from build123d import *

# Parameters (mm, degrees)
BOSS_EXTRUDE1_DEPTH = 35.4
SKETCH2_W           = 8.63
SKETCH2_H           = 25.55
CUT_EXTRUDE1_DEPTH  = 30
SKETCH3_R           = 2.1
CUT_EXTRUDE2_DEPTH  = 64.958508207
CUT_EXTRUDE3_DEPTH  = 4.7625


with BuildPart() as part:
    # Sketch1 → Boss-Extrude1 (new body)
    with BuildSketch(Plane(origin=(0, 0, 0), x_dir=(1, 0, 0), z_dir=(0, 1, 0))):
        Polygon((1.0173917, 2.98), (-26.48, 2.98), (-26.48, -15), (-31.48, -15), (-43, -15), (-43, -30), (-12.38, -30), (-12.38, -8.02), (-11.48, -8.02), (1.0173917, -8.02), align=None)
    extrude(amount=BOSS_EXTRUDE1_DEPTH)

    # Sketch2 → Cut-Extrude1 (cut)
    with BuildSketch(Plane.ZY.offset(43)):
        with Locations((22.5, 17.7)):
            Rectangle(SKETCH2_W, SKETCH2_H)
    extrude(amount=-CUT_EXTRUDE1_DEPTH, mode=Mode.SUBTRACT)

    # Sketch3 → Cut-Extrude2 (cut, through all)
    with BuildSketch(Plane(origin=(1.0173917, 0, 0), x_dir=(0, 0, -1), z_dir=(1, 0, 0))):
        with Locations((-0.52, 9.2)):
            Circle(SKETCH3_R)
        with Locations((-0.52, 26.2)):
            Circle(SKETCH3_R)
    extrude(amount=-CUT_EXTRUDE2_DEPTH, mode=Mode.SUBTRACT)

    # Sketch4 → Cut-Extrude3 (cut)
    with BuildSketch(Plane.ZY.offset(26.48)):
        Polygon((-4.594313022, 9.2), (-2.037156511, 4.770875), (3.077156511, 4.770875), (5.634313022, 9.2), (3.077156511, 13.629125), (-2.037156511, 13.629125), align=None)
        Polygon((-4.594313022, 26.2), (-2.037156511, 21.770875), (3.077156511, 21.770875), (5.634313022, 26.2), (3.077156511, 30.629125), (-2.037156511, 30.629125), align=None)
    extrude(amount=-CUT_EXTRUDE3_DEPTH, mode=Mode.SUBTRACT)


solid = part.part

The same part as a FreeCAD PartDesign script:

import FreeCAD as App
import Part
import Sketcher
Q = App.Units.Quantity

doc = App.newDocument("Part")
body = doc.addObject("PartDesign::Body", "Body")

sketch1 = body.newObject("Sketcher::SketchObject", "Sketch")
sketch1.AttachmentSupport = (doc.getObject("XZ_Plane"), [""])
sketch1.MapMode = "FlatFace"
sketch1.addGeometry([
    Part.LineSegment(App.Vector(1.017392, -2.98, 0), App.Vector(-26.48, -2.98, 0)),
    Part.LineSegment(App.Vector(-26.48, -2.98, 0), App.Vector(-26.48, 15, 0)),
    Part.LineSegment(App.Vector(-26.48, 15, 0), App.Vector(-43, 15, 0)),
    Part.LineSegment(App.Vector(-43, 15, 0), App.Vector(-43, 30, 0)),
    Part.LineSegment(App.Vector(-43, 30, 0), App.Vector(-12.38, 30, 0)),
    Part.LineSegment(App.Vector(-12.38, 30, 0), App.Vector(-12.38, 8.02, 0)),
    Part.LineSegment(App.Vector(-12.38, 8.02, 0), App.Vector(1.017392, 8.02, 0)),
    Part.LineSegment(App.Vector(1.017392, 8.02, 0), App.Vector(1.017392, -2.98, 0)),
], False)
sketch1.addConstraint([
    Sketcher.Constraint("Coincident", 0, 2, 1, 1),
    Sketcher.Constraint("Coincident", 1, 2, 2, 1),
    Sketcher.Constraint("Coincident", 2, 2, 3, 1),
    Sketcher.Constraint("Coincident", 3, 2, 4, 1),
    Sketcher.Constraint("Coincident", 4, 2, 5, 1),
    Sketcher.Constraint("Coincident", 5, 2, 6, 1),
    Sketcher.Constraint("Coincident", 6, 2, 7, 1),
    Sketcher.Constraint("Coincident", 7, 2, 0, 1),
    Sketcher.Constraint("Horizontal", 0),
    Sketcher.Constraint("Vertical", 1),
    Sketcher.Constraint("Horizontal", 2),
    Sketcher.Constraint("Vertical", 3),
    Sketcher.Constraint("Horizontal", 4),
    Sketcher.Constraint("Vertical", 5),
    Sketcher.Constraint("Horizontal", 6),
    Sketcher.Constraint("Vertical", 7),
    Sketcher.Constraint("DistanceY", 3, 1, 3, 2, 15.0),
    Sketcher.Constraint("DistanceY", 7, 2, 7, 1, 11.0),
    Sketcher.Constraint("DistanceY", -1, 1, 1, 2, 15.0),
    Sketcher.Constraint("DistanceX", 2, 2, -1, 1, 43.0),
    Sketcher.Constraint("DistanceX", 2, 2, 2, 1, 16.52),
    Sketcher.Constraint("DistanceX", 4, 1, 4, 2, 30.62),
    Sketcher.Constraint("DistanceY", 1, 1, 1, 2, 17.98),
    Sketcher.Constraint("DistanceX", 0, 2, 0, 1, 27.497392),
])
pad1 = body.newObject("PartDesign::Pad", "Pad")
pad1.Profile = sketch1
pad1.Length = 35.4
pad1.Reversed = True

sketch2 = body.newObject("Sketcher::SketchObject", "Sketch001")
sketch2.AttachmentSupport = (doc.getObject("YZ_Plane"), [""])
sketch2.MapMode = "FlatFace"
sketch2.AttachmentOffset = App.Placement(App.Vector(0, 0, -43), App.Rotation())
sketch2.addGeometry([
    Part.LineSegment(App.Vector(30.475, 18.185, 0), App.Vector(4.925, 18.185, 0)),
    Part.LineSegment(App.Vector(4.925, 18.185, 0), App.Vector(4.925, 26.815, 0)),
    Part.LineSegment(App.Vector(4.925, 26.815, 0), App.Vector(30.475, 26.815, 0)),
    Part.LineSegment(App.Vector(30.475, 26.815, 0), App.Vector(30.475, 18.185, 0)),
], False)
sketch2.addConstraint([
    Sketcher.Constraint("Coincident", 0, 2, 1, 1),
    Sketcher.Constraint("Coincident", 1, 2, 2, 1),
    Sketcher.Constraint("Coincident", 2, 2, 3, 1),
    Sketcher.Constraint("Coincident", 3, 2, 0, 1),
    Sketcher.Constraint("Horizontal", 0),
    Sketcher.Constraint("Vertical", 1),
    Sketcher.Constraint("Horizontal", 2),
    Sketcher.Constraint("Vertical", 3),
    Sketcher.Constraint("DistanceX", 0, 2, 0, 1, 25.55),
    Sketcher.Constraint("DistanceY", 1, 1, 1, 2, 8.63),
    Sketcher.Constraint("DistanceX", -1, 1, 0, 2, 4.925),
    Sketcher.Constraint("DistanceY", -1, 1, 0, 2, 18.185),
])
pocket1 = body.newObject("PartDesign::Pocket", "Pocket")
pocket1.Profile = sketch2
pocket1.Length = 30
pocket1.Reversed = True

sketch3 = body.newObject("Sketcher::SketchObject", "Sketch002")
sketch3.AttachmentSupport = (doc.getObject("YZ_Plane"), [""])
sketch3.MapMode = "FlatFace"
sketch3.AttachmentOffset = App.Placement(App.Vector(0, 0, 1.017392), App.Rotation())
sketch3.addGeometry([
    Part.Circle(App.Vector(9.2, 0.52, 0), App.Vector(0, 0, 1), 2.1),
    Part.Circle(App.Vector(26.2, 0.52, 0), App.Vector(0, 0, 1), 2.1),
], False)
sketch3.addConstraint([
    Sketcher.Constraint("Equal", 0, 1),
    Sketcher.Constraint("Horizontal", 0, 3, 1, 3),
    Sketcher.Constraint("Diameter", 0, 4.2),
    Sketcher.Constraint("DistanceX", 0, 3, 1, 3, 17.0),
    Sketcher.Constraint("DistanceX", -1, 1, 0, 3, 9.2),
    Sketcher.Constraint("DistanceY", -1, 1, 0, 3, 0.52),
])
pocket2 = body.newObject("PartDesign::Pocket", "Pocket001")
pocket2.Profile = sketch3
pocket2.Type = "ThroughAll"

sketch4 = body.newObject("Sketcher::SketchObject", "Sketch003")
sketch4.AttachmentSupport = (doc.getObject("YZ_Plane"), [""])
sketch4.MapMode = "FlatFace"
sketch4.AttachmentOffset = App.Placement(App.Vector(0, 0, -26.48), App.Rotation())
sketch4.addGeometry([
    Part.LineSegment(App.Vector(9.2, -4.594313, 0), App.Vector(4.770875, -2.037157, 0)),
    Part.LineSegment(App.Vector(4.770875, -2.037157, 0), App.Vector(4.770875, 3.077157, 0)),
    Part.LineSegment(App.Vector(4.770875, 3.077157, 0), App.Vector(9.2, 5.634313, 0)),
    Part.LineSegment(App.Vector(9.2, 5.634313, 0), App.Vector(13.629125, 3.077157, 0)),
    Part.LineSegment(App.Vector(13.629125, 3.077157, 0), App.Vector(13.629125, -2.037157, 0)),
    Part.LineSegment(App.Vector(13.629125, -2.037157, 0), App.Vector(9.2, -4.594313, 0)),
    Part.LineSegment(App.Vector(26.2, -4.594313, 0), App.Vector(21.770875, -2.037157, 0)),
    Part.LineSegment(App.Vector(21.770875, -2.037157, 0), App.Vector(21.770875, 3.077157, 0)),
    Part.LineSegment(App.Vector(21.770875, 3.077157, 0), App.Vector(26.2, 5.634313, 0)),
    Part.LineSegment(App.Vector(26.2, 5.634313, 0), App.Vector(30.629125, 3.077157, 0)),
    Part.LineSegment(App.Vector(30.629125, 3.077157, 0), App.Vector(30.629125, -2.037157, 0)),
    Part.LineSegment(App.Vector(30.629125, -2.037157, 0), App.Vector(26.2, -4.594313, 0)),
], False)
sketch4.addConstraint([
    Sketcher.Constraint("Coincident", 0, 2, 1, 1),
    Sketcher.Constraint("Coincident", 1, 2, 2, 1),
    Sketcher.Constraint("Coincident", 2, 2, 3, 1),
    Sketcher.Constraint("Coincident", 3, 2, 4, 1),
    Sketcher.Constraint("Coincident", 4, 2, 5, 1),
    Sketcher.Constraint("Coincident", 5, 2, 0, 1),
    Sketcher.Constraint("Coincident", 6, 2, 7, 1),
    Sketcher.Constraint("Coincident", 7, 2, 8, 1),
    Sketcher.Constraint("Coincident", 8, 2, 9, 1),
    Sketcher.Constraint("Coincident", 9, 2, 10, 1),
    Sketcher.Constraint("Coincident", 10, 2, 11, 1),
    Sketcher.Constraint("Coincident", 11, 2, 6, 1),
    Sketcher.Constraint("Vertical", 1),
    Sketcher.Constraint("Vertical", 4),
    Sketcher.Constraint("Vertical", 7),
    Sketcher.Constraint("Vertical", 10),
    Sketcher.Constraint("Parallel", 0, 3),
    Sketcher.Constraint("Parallel", 2, 5),
    Sketcher.Constraint("Parallel", 3, 6),
    Sketcher.Constraint("Parallel", 5, 8),
    Sketcher.Constraint("Parallel", 6, 9),
    Sketcher.Constraint("Parallel", 8, 11),
    Sketcher.Constraint("Horizontal", 1, 2, 3, 2),
    Sketcher.Constraint("Horizontal", 0, 2, 4, 2),
    Sketcher.Constraint("Horizontal", 4, 2, 6, 2),
    Sketcher.Constraint("Horizontal", 3, 2, 7, 2),
    Sketcher.Constraint("Horizontal", 2, 2, 8, 2),
    Sketcher.Constraint("Horizontal", 7, 2, 9, 2),
    Sketcher.Constraint("Horizontal", 6, 2, 10, 2),
    Sketcher.Constraint("Vertical", 2, 2, 5, 2),
    Sketcher.Constraint("Angle", 0, Q("150 deg")),
    Sketcher.Constraint("DistanceX", 0, 2, 6, 2, 17.0),
    Sketcher.Constraint("DistanceX", -1, 1, 2, 2, 9.2),
    Sketcher.Constraint("DistanceY", 1, 1, 1, 2, 5.114313),
    Sketcher.Constraint("DistanceY", 0, 2, 2, 2, 7.67147),
    Sketcher.Constraint("DistanceY", 0, 2, -1, 1, 2.037157),
])
pocket3 = body.newObject("PartDesign::Pocket", "Pocket002")
pocket3.Profile = sketch4
pocket3.Length = 4.7625
pocket3.Reversed = True

doc.recompute()
